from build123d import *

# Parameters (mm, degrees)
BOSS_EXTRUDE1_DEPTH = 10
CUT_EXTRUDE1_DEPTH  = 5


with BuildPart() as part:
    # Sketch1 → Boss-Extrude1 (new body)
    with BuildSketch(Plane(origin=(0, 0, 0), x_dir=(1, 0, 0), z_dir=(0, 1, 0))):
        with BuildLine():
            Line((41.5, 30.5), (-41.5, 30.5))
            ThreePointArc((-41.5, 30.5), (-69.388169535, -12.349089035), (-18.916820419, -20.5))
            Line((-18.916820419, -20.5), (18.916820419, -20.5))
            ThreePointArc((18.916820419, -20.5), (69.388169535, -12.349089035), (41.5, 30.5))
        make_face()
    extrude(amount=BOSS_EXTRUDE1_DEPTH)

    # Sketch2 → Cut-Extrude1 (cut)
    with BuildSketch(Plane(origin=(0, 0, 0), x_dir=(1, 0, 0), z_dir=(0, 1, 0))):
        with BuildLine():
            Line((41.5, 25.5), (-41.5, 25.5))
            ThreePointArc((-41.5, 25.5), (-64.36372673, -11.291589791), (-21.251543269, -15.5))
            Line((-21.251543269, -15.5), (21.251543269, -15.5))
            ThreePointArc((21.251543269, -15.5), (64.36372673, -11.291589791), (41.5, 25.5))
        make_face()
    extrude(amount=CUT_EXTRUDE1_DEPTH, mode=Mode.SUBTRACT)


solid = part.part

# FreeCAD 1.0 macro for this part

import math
import FreeCAD as App
import Part
import Sketcher
Q = App.Units.Quantity

doc = App.newDocument("Part")
body = doc.addObject("PartDesign::Body", "Body")

# Sketch on XZ plane
sketch1 = doc.addObject("Sketcher::SketchObject", "Sketch")
body.addObject(sketch1)
sketch1.AttachmentSupport = (doc.XZ_Plane, [""])
sketch1.MapMode = "FlatFace"
sketch1.addGeometry([
    Part.LineSegment(App.Vector(42, -30, 0), App.Vector(-42, -30, 0)),
    Part.ArcOfCircle(Part.Circle(App.Vector(-42, 0, 0), App.Vector(0, 0, 1), 30), math.radians(42), math.radians(270)),
    Part.LineSegment(App.Vector(-19, 20, 0), App.Vector(19, 20, 0)),
    Part.ArcOfCircle(Part.Circle(App.Vector(42, 0, 0), App.Vector(0, 0, 1), 30), math.radians(-90), math.radians(138)),
], False)
sketch1.addConstraint([
    Sketcher.Constraint("Tangent", 0, 2, 1, 2),
    Sketcher.Constraint("Coincident", 1, 1, 2, 1),
    Sketcher.Constraint("Coincident", 2, 2, 3, 2),
    Sketcher.Constraint("Tangent", 3, 1, 0, 1),
    Sketcher.Constraint("Horizontal", 0),
    Sketcher.Constraint("Horizontal", 2),
    Sketcher.Constraint("Equal", 1, 3),
    Sketcher.Constraint("Symmetric", 1, 3, 3, 3, -1, 1),
    Sketcher.Constraint("Radius", 1, Q("30.5 mm")),
    Sketcher.Constraint("DistanceX", 0, 2, 0, 1, Q("83 mm")),
    Sketcher.Constraint("DistanceY", 0, 2, 1, 1, Q("51 mm")),
])
pad1 = doc.addObject("PartDesign::Pad", "Pad")
body.addObject(pad1)
pad1.Profile = sketch1
pad1.Length = 10
pad1.Reversed = True

# Sketch on XZ plane
sketch2 = doc.addObject("Sketcher::SketchObject", "Sketch001")
body.addObject(sketch2)
sketch2.AttachmentSupport = (doc.XZ_Plane, [""])
sketch2.MapMode = "FlatFace"
sketch2.addGeometry([
    Part.LineSegment(App.Vector(42, -26, 0), App.Vector(-42, -26, 0)),
    Part.ArcOfCircle(Part.Circle(App.Vector(-42, 0, 0), App.Vector(0, 0, 1), 26), math.radians(37), math.radians(270)),
    Part.LineSegment(App.Vector(-21, 16, 0), App.Vector(21, 16, 0)),
    Part.ArcOfCircle(Part.Circle(App.Vector(42, 0, 0), App.Vector(0, 0, 1), 26), math.radians(-90), math.radians(143)),
], False)
sketch2.addConstraint([
    Sketcher.Constraint("Tangent", 0, 2, 1, 2),
    Sketcher.Constraint("Coincident", 1, 1, 2, 1),
    Sketcher.Constraint("Coincident", 2, 2, 3, 2),
    Sketcher.Constraint("Tangent", 3, 1, 0, 1),
    Sketcher.Constraint("Horizontal", 0),
    Sketcher.Constraint("Horizontal", 2),
    Sketcher.Constraint("Equal", 1, 3),
    Sketcher.Constraint("Symmetric", 1, 3, 3, 3, -1, 1),
    Sketcher.Constraint("Radius", 1, Q("25.5 mm")),
    Sketcher.Constraint("DistanceX", 0, 2, 0, 1, Q("83 mm")),
    Sketcher.Constraint("DistanceY", 0, 2, 1, 1, Q("41 mm")),
])
pocket1 = doc.addObject("PartDesign::Pocket", "Pocket")
body.addObject(pocket1)
pocket1.Profile = sketch2
pocket1.Length = 5

doc.recompute()
